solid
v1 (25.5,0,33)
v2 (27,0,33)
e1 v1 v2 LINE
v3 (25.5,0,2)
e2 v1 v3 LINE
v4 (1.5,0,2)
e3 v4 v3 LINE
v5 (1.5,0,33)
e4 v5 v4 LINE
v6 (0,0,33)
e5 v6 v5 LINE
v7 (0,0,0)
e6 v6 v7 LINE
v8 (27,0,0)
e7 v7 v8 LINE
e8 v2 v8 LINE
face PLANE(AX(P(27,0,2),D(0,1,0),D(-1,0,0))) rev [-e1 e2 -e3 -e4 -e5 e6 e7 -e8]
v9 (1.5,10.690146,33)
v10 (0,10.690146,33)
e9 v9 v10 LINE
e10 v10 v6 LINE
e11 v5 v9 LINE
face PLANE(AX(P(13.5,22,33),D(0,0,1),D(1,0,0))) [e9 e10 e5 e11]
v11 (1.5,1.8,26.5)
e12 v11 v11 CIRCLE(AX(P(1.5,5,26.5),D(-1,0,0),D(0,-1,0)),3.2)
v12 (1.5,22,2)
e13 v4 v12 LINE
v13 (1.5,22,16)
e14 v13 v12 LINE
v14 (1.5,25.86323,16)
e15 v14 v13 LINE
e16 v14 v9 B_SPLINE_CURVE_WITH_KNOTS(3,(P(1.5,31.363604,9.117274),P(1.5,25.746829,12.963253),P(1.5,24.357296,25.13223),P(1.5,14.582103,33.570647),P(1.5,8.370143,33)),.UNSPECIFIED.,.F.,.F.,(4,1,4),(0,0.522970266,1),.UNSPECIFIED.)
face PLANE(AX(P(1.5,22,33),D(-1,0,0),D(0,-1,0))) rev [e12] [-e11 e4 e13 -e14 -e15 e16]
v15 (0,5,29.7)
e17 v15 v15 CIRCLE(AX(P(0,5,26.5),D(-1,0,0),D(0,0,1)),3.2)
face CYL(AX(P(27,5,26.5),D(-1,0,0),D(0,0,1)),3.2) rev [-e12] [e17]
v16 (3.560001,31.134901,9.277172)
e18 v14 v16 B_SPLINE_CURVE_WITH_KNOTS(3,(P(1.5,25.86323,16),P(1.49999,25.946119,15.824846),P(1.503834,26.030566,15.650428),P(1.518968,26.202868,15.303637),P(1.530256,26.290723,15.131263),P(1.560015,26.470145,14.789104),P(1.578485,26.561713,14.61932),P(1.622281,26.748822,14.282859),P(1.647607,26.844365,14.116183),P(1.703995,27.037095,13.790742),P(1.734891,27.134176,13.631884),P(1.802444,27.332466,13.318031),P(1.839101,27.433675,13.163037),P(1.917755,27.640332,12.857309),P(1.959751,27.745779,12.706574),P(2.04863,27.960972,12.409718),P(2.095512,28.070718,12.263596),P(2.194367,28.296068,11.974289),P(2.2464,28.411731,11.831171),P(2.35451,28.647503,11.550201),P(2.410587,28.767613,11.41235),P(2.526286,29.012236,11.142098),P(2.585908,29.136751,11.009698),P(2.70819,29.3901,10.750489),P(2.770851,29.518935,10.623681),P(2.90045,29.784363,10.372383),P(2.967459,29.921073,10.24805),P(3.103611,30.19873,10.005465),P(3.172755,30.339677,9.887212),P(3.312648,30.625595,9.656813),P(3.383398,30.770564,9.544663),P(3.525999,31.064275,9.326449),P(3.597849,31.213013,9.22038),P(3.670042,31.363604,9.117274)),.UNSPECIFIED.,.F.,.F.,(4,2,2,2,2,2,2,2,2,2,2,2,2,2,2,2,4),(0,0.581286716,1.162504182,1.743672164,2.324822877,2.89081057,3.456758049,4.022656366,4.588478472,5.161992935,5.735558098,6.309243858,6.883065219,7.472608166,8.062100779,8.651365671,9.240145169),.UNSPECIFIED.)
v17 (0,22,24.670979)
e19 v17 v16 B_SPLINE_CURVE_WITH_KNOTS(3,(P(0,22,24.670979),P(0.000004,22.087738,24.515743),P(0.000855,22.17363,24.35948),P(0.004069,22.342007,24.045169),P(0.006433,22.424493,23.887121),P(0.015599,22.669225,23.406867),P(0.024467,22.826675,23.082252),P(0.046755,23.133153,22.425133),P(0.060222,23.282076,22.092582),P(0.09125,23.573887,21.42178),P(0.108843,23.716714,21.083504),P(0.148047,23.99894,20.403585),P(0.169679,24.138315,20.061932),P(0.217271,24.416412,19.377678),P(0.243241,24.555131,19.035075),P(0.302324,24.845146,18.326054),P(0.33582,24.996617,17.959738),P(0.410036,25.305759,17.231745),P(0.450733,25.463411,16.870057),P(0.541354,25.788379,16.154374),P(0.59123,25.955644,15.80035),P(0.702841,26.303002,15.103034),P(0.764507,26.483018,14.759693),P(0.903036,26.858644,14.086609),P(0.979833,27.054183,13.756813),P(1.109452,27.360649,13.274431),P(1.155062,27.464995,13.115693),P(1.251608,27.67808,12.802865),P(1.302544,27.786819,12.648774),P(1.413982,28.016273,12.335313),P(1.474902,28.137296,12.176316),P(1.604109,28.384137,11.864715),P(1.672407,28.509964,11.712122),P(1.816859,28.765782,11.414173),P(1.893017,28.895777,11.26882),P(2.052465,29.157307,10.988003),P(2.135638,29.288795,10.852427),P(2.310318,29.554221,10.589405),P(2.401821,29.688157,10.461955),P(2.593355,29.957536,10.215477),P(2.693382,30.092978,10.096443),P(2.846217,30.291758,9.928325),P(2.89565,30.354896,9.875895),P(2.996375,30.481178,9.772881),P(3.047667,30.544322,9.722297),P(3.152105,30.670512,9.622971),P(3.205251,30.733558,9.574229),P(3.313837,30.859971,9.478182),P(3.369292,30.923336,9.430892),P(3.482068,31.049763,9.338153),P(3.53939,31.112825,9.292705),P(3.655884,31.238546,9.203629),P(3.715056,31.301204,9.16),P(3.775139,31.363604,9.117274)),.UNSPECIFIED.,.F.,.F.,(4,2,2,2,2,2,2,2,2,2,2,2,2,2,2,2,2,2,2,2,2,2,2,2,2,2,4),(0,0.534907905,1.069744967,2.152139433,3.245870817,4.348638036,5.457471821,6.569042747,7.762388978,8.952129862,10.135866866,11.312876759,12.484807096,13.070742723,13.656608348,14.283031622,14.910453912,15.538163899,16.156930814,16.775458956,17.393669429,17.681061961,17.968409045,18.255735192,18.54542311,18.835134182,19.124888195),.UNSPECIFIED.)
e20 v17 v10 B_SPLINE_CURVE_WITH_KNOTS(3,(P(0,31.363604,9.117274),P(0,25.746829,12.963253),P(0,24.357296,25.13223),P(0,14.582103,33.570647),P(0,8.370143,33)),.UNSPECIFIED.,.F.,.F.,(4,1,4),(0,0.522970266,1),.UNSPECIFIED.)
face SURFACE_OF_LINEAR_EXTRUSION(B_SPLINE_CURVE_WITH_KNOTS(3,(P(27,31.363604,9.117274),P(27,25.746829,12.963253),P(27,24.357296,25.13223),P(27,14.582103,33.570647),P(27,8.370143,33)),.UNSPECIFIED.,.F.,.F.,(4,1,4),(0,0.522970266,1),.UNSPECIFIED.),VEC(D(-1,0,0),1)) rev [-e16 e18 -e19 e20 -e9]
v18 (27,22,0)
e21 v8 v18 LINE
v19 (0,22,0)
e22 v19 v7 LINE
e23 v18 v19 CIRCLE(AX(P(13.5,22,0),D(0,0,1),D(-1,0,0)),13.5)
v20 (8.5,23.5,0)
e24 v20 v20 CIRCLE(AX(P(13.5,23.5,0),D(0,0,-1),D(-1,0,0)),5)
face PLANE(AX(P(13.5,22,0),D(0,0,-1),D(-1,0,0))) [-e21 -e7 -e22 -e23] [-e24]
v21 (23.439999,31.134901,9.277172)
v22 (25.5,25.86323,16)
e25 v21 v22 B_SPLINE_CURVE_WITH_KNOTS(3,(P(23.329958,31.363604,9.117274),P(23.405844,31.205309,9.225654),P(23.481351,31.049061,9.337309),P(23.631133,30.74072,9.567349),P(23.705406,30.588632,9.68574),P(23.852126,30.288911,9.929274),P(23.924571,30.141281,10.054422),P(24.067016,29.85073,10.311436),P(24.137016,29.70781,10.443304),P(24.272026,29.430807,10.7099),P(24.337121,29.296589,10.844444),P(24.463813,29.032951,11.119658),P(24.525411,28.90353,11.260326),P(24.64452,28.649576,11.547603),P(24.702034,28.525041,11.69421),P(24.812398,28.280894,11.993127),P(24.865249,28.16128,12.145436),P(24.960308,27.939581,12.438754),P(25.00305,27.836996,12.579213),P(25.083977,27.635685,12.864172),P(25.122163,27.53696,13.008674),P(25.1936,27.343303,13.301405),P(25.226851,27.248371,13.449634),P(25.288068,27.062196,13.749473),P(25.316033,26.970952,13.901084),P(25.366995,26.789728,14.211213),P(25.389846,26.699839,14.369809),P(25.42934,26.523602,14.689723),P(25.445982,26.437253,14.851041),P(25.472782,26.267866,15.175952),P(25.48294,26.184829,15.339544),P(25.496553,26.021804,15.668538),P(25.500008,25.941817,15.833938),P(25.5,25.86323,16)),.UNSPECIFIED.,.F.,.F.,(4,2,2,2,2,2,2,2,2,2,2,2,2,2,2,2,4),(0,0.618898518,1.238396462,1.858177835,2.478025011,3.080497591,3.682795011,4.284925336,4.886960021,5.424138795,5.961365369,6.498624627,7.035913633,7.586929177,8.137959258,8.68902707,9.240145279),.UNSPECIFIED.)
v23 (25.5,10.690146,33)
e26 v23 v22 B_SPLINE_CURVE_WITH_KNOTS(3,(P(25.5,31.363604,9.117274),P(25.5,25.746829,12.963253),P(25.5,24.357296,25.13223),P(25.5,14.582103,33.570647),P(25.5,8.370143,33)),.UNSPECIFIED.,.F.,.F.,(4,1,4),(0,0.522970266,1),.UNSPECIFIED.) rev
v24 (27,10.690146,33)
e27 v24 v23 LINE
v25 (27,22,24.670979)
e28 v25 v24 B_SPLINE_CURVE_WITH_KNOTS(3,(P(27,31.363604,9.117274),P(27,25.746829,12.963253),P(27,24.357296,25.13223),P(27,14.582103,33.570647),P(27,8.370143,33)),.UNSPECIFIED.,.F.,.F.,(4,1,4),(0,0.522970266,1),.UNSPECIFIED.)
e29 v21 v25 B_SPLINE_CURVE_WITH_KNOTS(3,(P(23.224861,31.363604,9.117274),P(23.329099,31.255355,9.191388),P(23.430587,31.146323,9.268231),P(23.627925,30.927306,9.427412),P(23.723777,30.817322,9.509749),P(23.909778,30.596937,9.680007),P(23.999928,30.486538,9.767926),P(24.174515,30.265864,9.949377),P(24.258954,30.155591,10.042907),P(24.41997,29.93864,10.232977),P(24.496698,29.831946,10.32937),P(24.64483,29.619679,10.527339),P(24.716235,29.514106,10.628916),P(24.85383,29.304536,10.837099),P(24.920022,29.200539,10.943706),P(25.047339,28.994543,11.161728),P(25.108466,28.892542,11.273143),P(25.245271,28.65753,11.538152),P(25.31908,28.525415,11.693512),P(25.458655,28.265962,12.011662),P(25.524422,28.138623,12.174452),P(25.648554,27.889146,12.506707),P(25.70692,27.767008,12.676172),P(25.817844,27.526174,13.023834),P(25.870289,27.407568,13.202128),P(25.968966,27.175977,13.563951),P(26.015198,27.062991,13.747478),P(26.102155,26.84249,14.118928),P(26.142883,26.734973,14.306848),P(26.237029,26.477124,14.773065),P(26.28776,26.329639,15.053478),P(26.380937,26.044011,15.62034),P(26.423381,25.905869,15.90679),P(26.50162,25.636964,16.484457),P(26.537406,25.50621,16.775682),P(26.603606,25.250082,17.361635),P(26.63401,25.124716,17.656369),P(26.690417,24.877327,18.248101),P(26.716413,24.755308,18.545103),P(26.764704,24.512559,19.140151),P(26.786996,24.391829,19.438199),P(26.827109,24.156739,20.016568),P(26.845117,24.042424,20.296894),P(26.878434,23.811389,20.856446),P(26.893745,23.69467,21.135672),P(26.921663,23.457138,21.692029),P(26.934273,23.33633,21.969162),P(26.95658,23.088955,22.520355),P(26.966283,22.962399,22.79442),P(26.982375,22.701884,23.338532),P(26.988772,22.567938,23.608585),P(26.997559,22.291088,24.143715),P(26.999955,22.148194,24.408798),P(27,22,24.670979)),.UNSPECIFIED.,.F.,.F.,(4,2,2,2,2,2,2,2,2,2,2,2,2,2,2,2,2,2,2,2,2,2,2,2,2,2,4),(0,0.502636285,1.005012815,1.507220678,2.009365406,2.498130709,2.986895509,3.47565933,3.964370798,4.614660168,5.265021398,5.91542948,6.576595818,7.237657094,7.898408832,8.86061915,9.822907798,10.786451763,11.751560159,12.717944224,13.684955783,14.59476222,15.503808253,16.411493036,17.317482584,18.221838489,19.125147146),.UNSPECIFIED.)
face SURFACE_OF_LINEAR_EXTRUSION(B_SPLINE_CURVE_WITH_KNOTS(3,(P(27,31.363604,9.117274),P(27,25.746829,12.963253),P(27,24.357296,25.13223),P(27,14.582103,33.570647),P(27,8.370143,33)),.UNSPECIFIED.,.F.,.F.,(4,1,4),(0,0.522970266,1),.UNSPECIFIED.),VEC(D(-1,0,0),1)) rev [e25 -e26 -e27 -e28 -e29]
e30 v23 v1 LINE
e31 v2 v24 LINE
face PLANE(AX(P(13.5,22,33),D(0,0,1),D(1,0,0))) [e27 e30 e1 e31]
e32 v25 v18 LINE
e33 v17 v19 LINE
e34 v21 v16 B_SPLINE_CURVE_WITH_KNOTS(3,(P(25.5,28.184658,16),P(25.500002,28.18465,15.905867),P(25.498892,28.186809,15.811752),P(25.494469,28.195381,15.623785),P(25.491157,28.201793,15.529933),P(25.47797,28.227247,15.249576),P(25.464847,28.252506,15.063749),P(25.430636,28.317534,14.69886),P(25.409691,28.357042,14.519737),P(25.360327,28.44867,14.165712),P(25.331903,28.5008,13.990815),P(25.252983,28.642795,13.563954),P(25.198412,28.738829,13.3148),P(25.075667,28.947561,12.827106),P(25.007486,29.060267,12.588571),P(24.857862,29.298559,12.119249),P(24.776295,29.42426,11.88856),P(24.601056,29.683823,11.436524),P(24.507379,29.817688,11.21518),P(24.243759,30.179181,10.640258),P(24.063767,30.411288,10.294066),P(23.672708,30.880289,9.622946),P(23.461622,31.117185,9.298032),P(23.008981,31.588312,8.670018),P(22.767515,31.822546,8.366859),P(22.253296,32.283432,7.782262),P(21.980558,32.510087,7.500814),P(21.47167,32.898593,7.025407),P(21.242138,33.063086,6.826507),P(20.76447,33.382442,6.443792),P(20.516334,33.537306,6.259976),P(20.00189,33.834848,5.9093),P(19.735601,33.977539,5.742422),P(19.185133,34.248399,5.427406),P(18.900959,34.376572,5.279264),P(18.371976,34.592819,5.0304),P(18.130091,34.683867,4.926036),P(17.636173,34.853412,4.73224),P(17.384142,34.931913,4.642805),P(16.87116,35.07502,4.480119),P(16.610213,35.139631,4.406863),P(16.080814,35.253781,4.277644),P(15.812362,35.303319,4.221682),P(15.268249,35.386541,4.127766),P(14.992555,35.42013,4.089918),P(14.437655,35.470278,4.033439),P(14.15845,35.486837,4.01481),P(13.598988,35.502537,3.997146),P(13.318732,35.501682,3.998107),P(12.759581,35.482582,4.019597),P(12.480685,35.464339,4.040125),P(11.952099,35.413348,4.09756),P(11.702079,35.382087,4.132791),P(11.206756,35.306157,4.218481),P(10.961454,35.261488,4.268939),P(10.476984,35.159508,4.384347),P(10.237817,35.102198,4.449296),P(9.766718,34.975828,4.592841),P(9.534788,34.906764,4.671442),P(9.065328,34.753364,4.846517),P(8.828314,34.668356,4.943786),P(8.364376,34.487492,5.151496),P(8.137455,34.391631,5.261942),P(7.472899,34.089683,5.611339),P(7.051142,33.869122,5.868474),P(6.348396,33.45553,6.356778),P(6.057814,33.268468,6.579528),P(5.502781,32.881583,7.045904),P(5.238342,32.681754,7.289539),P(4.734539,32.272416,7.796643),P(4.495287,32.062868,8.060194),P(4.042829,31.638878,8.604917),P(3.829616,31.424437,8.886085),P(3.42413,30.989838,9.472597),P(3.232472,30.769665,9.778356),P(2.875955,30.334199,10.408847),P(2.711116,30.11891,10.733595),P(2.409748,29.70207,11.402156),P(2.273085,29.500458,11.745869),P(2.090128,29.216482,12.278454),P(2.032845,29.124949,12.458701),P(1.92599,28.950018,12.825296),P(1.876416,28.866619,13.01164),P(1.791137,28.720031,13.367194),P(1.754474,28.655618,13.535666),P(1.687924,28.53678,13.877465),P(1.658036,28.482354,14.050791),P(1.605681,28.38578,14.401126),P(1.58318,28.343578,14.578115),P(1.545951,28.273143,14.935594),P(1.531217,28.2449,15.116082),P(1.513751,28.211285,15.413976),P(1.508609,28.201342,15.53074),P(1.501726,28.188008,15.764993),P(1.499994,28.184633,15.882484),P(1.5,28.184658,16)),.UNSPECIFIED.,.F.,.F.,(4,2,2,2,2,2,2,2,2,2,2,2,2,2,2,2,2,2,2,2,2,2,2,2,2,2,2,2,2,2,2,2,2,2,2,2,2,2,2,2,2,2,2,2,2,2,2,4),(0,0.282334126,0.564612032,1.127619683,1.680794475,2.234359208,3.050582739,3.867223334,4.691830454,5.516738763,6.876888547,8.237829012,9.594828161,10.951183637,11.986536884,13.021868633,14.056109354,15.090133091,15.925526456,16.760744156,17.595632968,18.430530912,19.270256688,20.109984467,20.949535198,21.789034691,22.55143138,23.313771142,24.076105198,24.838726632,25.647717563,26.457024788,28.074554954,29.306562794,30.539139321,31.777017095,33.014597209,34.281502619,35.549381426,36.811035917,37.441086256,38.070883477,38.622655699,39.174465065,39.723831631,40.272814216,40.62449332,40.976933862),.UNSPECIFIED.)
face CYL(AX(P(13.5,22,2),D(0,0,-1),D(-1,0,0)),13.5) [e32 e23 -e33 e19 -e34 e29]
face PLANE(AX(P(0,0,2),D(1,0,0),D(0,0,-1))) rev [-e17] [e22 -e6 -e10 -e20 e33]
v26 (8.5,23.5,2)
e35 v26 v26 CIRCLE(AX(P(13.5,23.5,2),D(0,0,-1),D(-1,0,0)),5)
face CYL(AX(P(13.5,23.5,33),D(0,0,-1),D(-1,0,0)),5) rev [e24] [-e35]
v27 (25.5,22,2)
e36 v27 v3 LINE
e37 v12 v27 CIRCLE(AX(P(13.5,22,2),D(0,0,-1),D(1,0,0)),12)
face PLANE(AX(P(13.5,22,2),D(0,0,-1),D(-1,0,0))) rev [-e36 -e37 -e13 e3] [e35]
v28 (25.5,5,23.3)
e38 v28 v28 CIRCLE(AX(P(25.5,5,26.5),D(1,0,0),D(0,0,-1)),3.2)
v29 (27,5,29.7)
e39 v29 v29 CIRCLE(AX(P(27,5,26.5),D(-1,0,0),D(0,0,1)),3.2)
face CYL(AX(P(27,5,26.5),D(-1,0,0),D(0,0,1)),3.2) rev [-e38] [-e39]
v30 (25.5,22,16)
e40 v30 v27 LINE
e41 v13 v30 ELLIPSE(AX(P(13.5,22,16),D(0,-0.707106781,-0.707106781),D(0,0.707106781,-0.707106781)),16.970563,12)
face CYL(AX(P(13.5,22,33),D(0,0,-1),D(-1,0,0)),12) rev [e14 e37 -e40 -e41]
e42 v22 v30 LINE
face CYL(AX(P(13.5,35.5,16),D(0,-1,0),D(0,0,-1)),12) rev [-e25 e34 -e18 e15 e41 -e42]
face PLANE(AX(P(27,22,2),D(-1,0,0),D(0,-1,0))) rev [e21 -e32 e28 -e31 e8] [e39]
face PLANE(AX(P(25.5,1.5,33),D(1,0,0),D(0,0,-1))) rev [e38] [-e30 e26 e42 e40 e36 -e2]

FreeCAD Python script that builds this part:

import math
import FreeCAD as App
import Part
import Sketcher
from FreeCAD import Vector
Q = App.Units.Quantity

doc = App.newDocument("Part")
body = doc.addObject("PartDesign::Body", "Body")

sketch1 = doc.addObject("Sketcher::SketchObject", "Sketch")
body.addObject(sketch1)
sketch1.AttachmentSupport = (doc.XY_Plane, [""])
sketch1.MapMode = "FlatFace"
sketch1.addGeometry(Part.LineSegment(Vector(0, 22, 0), Vector(0, 0, 0)), False)
sketch1.addGeometry(Part.LineSegment(Vector(0, 0, 0), Vector(27, 0, 0)), False)
sketch1.addGeometry(Part.LineSegment(Vector(27, 0, 0), Vector(27, 22, 0)), False)
sketch1.addGeometry(Part.ArcOfCircle(Part.Circle(Vector(14, 22, 0), Vector(0, 0, 1), 14), math.radians(0), math.radians(180)), False)
sketch1.addConstraint(Sketcher.Constraint("Coincident", 0, 2, 1, 1))
sketch1.addConstraint(Sketcher.Constraint("Coincident", 1, 2, 2, 1))
sketch1.addConstraint(Sketcher.Constraint("Tangent", 2, 2, 3, 1))
sketch1.addConstraint(Sketcher.Constraint("Tangent", 3, 2, 0, 1))
sketch1.addConstraint(Sketcher.Constraint("Vertical", 0))
sketch1.addConstraint(Sketcher.Constraint("Horizontal", 1))
sketch1.addConstraint(Sketcher.Constraint("Vertical", 2))
sketch1.addConstraint(Sketcher.Constraint("Coincident", 0, 2, -1, 1))
sketch1.addConstraint(Sketcher.Constraint("Radius", 3, Q("13.5 mm")))
sketch1.addConstraint(Sketcher.Constraint("DistanceY", 0, 2, 0, 1, Q("22 mm")))
pad1 = doc.addObject("PartDesign::Pad", "Pad")
body.addObject(pad1)
pad1.Profile = sketch1
pad1.Length = 2

sketch2 = doc.addObject("Sketcher::SketchObject", "Sketch001")
body.addObject(sketch2)
sketch2.AttachmentSupport = (doc.XY_Plane, [""])
sketch2.MapMode = "FlatFace"
sketch2.AttachmentOffset = App.Placement(Vector(0, 0, 2), App.Rotation())
sketch2.addGeometry(Part.LineSegment(Vector(27, 0, 0), Vector(27, 22, 0)), False)
sketch2.addGeometry(Part.ArcOfCircle(Part.Circle(Vector(13.5, 22, 0), Vector(0, 0, 1), 13.5), math.radians(0), math.radians(180)), False)
sketch2.addGeometry(Part.LineSegment(Vector(0, 22, 0), Vector(0, 0, 0)), False)
sketch2.addGeometry(Part.LineSegment(Vector(0, 0, 0), Vector(1.5, 0, 0)), False)
sketch2.addGeometry(Part.LineSegment(Vector(1.5, 0, 0), Vector(1.5, 22, 0)), False)
sketch2.addGeometry(Part.ArcOfCircle(Part.Circle(Vector(13.5, 22, 0), Vector(0, 0, 1), 12), math.radians(0), math.radians(180)), False)
sketch2.addGeometry(Part.LineSegment(Vector(25.5, 22, 0), Vector(25.5, 0, 0)), False)
sketch2.addGeometry(Part.LineSegment(Vector(25.5, 0, 0), Vector(27, 0, 0)), False)
sketch2.addConstraint(Sketcher.Constraint("Tangent", 0, 2, 1, 1))
sketch2.addConstraint(Sketcher.Constraint("Tangent", 1, 2, 2, 1))
sketch2.addConstraint(Sketcher.Constraint("Coincident", 2, 2, 3, 1))
sketch2.addConstraint(Sketcher.Constraint("Coincident", 3, 2, 4, 1))
sketch2.addConstraint(Sketcher.Constraint("Tangent", 4, 2, 5, 2))
sketch2.addConstraint(Sketcher.Constraint("Tangent", 5, 1, 6, 1))
sketch2.addConstraint(Sketcher.Constraint("Coincident", 6, 2, 7, 1))
sketch2.addConstraint(Sketcher.Constraint("Coincident", 7, 2, 0, 1))
sketch2.addConstraint(Sketcher.Constraint("Vertical", 0))
sketch2.addConstraint(Sketcher.Constraint("Vertical", 2))
sketch2.addConstraint(Sketcher.Constraint("Horizontal", 3))
sketch2.addConstraint(Sketcher.Constraint("Vertical", 4))
sketch2.addConstraint(Sketcher.Constraint("Vertical", 6))
sketch2.addConstraint(Sketcher.Constraint("Horizontal", 7))
sketch2.addConstraint(Sketcher.Constraint("Coincident", 2, 2, -1, 1))
sketch2.addConstraint(Sketcher.Constraint("Coincident", 5, 3, 1, 3))
sketch2.addConstraint(Sketcher.Constraint("PointOnObject", 6, 2, -1))
sketch2.addConstraint(Sketcher.Constraint("Radius", 5, Q("12 mm")))
sketch2.addConstraint(Sketcher.Constraint("Radius", 1, Q("13.5 mm")))
sketch2.addConstraint(Sketcher.Constraint("DistanceY", 0, 1, 0, 2, Q("22 mm")))
pad2 = doc.addObject("PartDesign::Pad", "Pad001")
body.addObject(pad2)
pad2.Profile = sketch2
pad2.Length = 31

sketch3 = doc.addObject("Sketcher::SketchObject", "Sketch002")
body.addObject(sketch3)
sketch3.AttachmentSupport = (doc.XZ_Plane, [""])
sketch3.MapMode = "FlatFace"
sketch3.addGeometry(Part.LineSegment(Vector(2, 16, 0), Vector(2, 33, 0)), False)
sketch3.addGeometry(Part.LineSegment(Vector(2, 33, 0), Vector(26, 33, 0)), False)
sketch3.addGeometry(Part.LineSegment(Vector(26, 33, 0), Vector(26, 16, 0)), False)
sketch3.addGeometry(Part.ArcOfCircle(Part.Circle(Vector(14, 16, 0), Vector(0, 0, 1), 12), math.radians(180), math.radians(360)), False)
sketch3.addConstraint(Sketcher.Constraint("Coincident", 0, 2, 1, 1))
sketch3.addConstraint(Sketcher.Constraint("Coincident", 1, 2, 2, 1))
sketch3.addConstraint(Sketcher.Constraint("Tangent", 2, 2, 3, 2))
sketch3.addConstraint(Sketcher.Constraint("Tangent", 3, 1, 0, 1))
sketch3.addConstraint(Sketcher.Constraint("Vertical", 0))
sketch3.addConstraint(Sketcher.Constraint("Horizontal", 1))
sketch3.addConstraint(Sketcher.Constraint("Vertical", 2))
sketch3.addConstraint(Sketcher.Constraint("Radius", 3, Q("12 mm")))
sketch3.addConstraint(Sketcher.Constraint("DistanceY", 0, 1, 0, 2, Q("17 mm")))
sketch3.addConstraint(Sketcher.Constraint("DistanceY", -1, 1, 3, 3, Q("16 mm")))
sketch3.addConstraint(Sketcher.Constraint("DistanceX", -1, 1, 3, 3, Q("13.5 mm")))
pocket1 = doc.addObject("PartDesign::Pocket", "Pocket")
body.addObject(pocket1)
pocket1.Profile = sketch3
pocket1.Type = "ThroughAll"

sketch4 = doc.addObject("Sketcher::SketchObject", "Sketch003")
body.addObject(sketch4)
sketch4.AttachmentSupport = (doc.YZ_Plane, [""])
sketch4.MapMode = "FlatFace"
sketch4.addGeometry(Part.LineSegment(Vector(31.363604, 33, 0), Vector(31.363604, 9.117274, 0)), False)
sketch4.addGeometry(Part.BSplineCurve([Vector(31.363604, 9.117274, 0), Vector(25.746829, 12.963253, 0), Vector(25.020145, 19.327266, 0), Vector(22, 24.670979, 0)], [4, 4], [0, 0.522970266], False, 3, [1, 1, 1, 1], False), False)
sketch4.addGeometry(Part.BSplineCurve([Vector(22, 24.670979, 0), Vector(19.599598, 28.918147, 0), Vector(15.750411, 32.520788, 0), Vector(10.690146, 33, 0)], [4, 4], [0.522970266, 0.938625516], False, 3, [1, 1, 1, 1], False), False)
sketch4.addGeometry(Part.LineSegment(Vector(10.690146, 33, 0), Vector(31.363604, 33, 0)), False)
sketch4.addConstraint(Sketcher.Constraint("Block", 1))
sketch4.addConstraint(Sketcher.Constraint("Block", 2))
sketch4.addConstraint(Sketcher.Constraint("Coincident", 0, 2, 1, 1))
sketch4.addConstraint(Sketcher.Constraint("Coincident", 2, 2, 3, 1))
sketch4.addConstraint(Sketcher.Constraint("Coincident", 3, 2, 0, 1))
sketch4.addConstraint(Sketcher.Constraint("Vertical", 0))
sketch4.addConstraint(Sketcher.Constraint("Horizontal", 3))
pocket2 = doc.addObject("PartDesign::Pocket", "Pocket001")
body.addObject(pocket2)
pocket2.Profile = sketch4
pocket2.Type = "ThroughAll"
pocket2.Reversed = True

sketch5 = doc.addObject("Sketcher::SketchObject", "Sketch004")
body.addObject(sketch5)
sketch5.AttachmentSupport = (doc.YZ_Plane, [""])
sketch5.MapMode = "FlatFace"
sketch5.addGeometry(Part.Circle(Vector(5, 26.5, 0), Vector(0, 0, 1), 3.2), False)
sketch5.addConstraint(Sketcher.Constraint("Diameter", 0, Q("6.4 mm")))
sketch5.addConstraint(Sketcher.Constraint("DistanceX", -1, 1, 0, 3, Q("5 mm")))
sketch5.addConstraint(Sketcher.Constraint("DistanceY", -1, 1, 0, 3, Q("26.5 mm")))
pocket3 = doc.addObject("PartDesign::Pocket", "Pocket002")
body.addObject(pocket3)
pocket3.Profile = sketch5
pocket3.Type = "ThroughAll"
pocket3.Reversed = True

sketch6 = doc.addObject("Sketcher::SketchObject", "Sketch005")
body.addObject(sketch6)
sketch6.AttachmentSupport = (doc.XY_Plane, [""])
sketch6.MapMode = "FlatFace"
sketch6.addGeometry(Part.Circle(Vector(14, 24, 0), Vector(0, 0, 1), 5), False)
sketch6.addConstraint(Sketcher.Constraint("Diameter", 0, Q("10 mm")))
sketch6.addConstraint(Sketcher.Constraint("DistanceX", -1, 1, 0, 3, Q("13.5 mm")))
sketch6.addConstraint(Sketcher.Constraint("DistanceY", -1, 1, 0, 3, Q("23.5 mm")))
pocket4 = doc.addObject("PartDesign::Pocket", "Pocket003")
body.addObject(pocket4)
pocket4.Profile = sketch6
pocket4.Type = "ThroughAll"
pocket4.Reversed = True

doc.recompute()
